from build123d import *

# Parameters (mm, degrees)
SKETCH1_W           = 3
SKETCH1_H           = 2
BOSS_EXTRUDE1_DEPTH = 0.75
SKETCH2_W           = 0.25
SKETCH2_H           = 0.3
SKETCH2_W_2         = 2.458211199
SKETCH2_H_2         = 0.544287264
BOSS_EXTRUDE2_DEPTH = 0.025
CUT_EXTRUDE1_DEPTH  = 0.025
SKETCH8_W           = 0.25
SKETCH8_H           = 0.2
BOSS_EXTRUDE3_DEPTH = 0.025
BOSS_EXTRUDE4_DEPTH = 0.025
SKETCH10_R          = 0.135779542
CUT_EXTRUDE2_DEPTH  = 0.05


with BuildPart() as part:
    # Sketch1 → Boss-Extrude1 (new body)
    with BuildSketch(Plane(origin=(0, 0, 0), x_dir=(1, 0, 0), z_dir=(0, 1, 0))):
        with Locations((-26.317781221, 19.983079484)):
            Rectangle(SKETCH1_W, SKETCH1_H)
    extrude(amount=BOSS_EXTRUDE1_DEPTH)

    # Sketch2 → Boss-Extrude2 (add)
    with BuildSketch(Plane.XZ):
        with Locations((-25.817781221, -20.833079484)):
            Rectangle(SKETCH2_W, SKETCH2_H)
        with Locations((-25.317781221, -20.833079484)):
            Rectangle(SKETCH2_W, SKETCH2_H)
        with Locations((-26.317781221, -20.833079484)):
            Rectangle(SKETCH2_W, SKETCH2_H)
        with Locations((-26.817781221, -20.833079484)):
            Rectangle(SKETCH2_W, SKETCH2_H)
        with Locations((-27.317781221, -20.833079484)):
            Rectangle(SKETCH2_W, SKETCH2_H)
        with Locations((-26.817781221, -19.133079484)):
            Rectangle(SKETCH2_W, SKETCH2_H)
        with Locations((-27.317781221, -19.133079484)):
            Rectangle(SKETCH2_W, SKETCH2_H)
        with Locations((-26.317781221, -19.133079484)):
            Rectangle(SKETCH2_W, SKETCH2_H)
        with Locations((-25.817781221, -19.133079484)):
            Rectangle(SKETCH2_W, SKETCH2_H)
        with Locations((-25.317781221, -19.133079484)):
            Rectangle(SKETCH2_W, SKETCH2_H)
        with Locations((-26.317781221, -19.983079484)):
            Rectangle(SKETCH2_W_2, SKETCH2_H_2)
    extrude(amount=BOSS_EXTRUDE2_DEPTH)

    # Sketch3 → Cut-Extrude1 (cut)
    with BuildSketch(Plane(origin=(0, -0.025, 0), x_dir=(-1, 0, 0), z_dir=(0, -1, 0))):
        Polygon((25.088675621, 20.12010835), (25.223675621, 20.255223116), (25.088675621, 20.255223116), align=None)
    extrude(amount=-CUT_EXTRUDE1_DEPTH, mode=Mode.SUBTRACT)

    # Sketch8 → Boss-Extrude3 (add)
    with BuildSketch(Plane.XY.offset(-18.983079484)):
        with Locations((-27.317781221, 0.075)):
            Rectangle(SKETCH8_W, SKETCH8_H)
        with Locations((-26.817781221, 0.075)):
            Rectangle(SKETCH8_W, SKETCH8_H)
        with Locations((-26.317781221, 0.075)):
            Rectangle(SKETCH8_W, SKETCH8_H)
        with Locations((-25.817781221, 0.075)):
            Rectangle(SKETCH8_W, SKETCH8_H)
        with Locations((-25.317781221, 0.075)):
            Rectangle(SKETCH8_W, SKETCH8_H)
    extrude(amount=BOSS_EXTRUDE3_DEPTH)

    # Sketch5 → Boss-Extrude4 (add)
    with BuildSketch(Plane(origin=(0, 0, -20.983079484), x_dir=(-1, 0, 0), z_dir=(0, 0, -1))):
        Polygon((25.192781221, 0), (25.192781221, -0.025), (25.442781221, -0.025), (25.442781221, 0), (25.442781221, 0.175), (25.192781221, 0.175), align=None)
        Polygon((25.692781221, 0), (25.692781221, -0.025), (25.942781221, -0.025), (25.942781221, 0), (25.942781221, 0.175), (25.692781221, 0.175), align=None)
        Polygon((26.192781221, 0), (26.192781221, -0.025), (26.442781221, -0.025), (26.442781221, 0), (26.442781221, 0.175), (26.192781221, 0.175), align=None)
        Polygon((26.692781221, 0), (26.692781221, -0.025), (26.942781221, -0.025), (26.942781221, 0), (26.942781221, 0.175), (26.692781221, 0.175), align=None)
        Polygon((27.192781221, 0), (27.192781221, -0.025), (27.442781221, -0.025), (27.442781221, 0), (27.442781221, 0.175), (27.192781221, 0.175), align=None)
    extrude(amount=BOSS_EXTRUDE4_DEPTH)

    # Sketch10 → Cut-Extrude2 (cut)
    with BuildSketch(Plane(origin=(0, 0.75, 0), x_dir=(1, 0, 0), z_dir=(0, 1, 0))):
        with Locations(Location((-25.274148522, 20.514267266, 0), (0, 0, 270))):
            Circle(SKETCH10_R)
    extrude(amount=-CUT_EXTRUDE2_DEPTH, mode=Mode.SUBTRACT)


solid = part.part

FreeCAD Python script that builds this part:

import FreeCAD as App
import Part
import Sketcher
from FreeCAD import Vector

doc = App.newDocument("Part")
body = doc.addObject("PartDesign::Body", "Body")

# Sketch on XZ plane
sketch1 = doc.addObject("Sketcher::SketchObject", "Sketch")
body.addObject(sketch1)
sketch1.AttachmentSupport = (doc.XZ_Plane, [""])
sketch1.MapMode = "FlatFace"
sketch1.addGeometry([
    Part.LineSegment(Vector(-27.8, -21, 0), Vector(-27.8, -19, 0)),
    Part.LineSegment(Vector(-27.8, -19, 0), Vector(-24.8, -19, 0)),
    Part.LineSegment(Vector(-24.8, -19, 0), Vector(-24.8, -21, 0)),
    Part.LineSegment(Vector(-24.8, -21, 0), Vector(-27.8, -21, 0)),
], False)
sketch1.addConstraint([
    Sketcher.Constraint("Coincident", 0, 2, 1, 1),
    Sketcher.Constraint("Coincident", 1, 2, 2, 1),
    Sketcher.Constraint("Coincident", 2, 2, 3, 1),
    Sketcher.Constraint("Coincident", 3, 2, 0, 1),
    Sketcher.Constraint("Vertical", 0),
    Sketcher.Constraint("Horizontal", 1),
    Sketcher.Constraint("Vertical", 2),
    Sketcher.Constraint("Horizontal", 3),
    Sketcher.Constraint("DistanceX", 1, 1, 1, 2, 3.0),
    Sketcher.Constraint("DistanceY", 0, 1, 0, 2, 2.0),
    Sketcher.Constraint("DistanceX", 0, 2, -1, 1, 27.817781),
    Sketcher.Constraint("DistanceY", 0, 2, -1, 1, 18.983079),
])
pad1 = doc.addObject("PartDesign::Pad", "Pad")
body.addObject(pad1)
pad1.Profile = sketch1
pad1.Length = 0.75
pad1.Reversed = True

# Sketch on XZ plane
sketch2 = doc.addObject("Sketcher::SketchObject", "Sketch001")
body.addObject(sketch2)
sketch2.AttachmentSupport = (doc.XZ_Plane, [""])
sketch2.MapMode = "FlatFace"
sketch2.addGeometry([
    Part.LineSegment(Vector(-25.94, -20.68, 0), Vector(-25.94, -20.98, 0)),  # 0
    Part.LineSegment(Vector(-25.94, -20.98, 0), Vector(-25.69, -20.98, 0)),  # 1
    Part.LineSegment(Vector(-25.69, -20.98, 0), Vector(-25.69, -20.68, 0)),  # 2
    Part.LineSegment(Vector(-25.69, -20.68, 0), Vector(-25.94, -20.68, 0)),  # 3
    Part.LineSegment(Vector(-25.44, -20.68, 0), Vector(-25.44, -20.98, 0)),  # 4
    Part.LineSegment(Vector(-25.44, -20.98, 0), Vector(-25.19, -20.98, 0)),  # 5
    Part.LineSegment(Vector(-25.19, -20.98, 0), Vector(-25.19, -20.68, 0)),  # 6
    Part.LineSegment(Vector(-25.19, -20.68, 0), Vector(-25.44, -20.68, 0)),  # 7
    Part.LineSegment(Vector(-26.44, -20.68, 0), Vector(-26.44, -20.98, 0)),  # 8
    Part.LineSegment(Vector(-26.44, -20.98, 0), Vector(-26.19, -20.98, 0)),  # 9
    Part.LineSegment(Vector(-26.19, -20.98, 0), Vector(-26.19, -20.68, 0)),  # 10
    Part.LineSegment(Vector(-26.19, -20.68, 0), Vector(-26.44, -20.68, 0)),  # 11
    Part.LineSegment(Vector(-26.94, -20.68, 0), Vector(-26.94, -20.98, 0)),  # 12
    Part.LineSegment(Vector(-26.94, -20.98, 0), Vector(-26.69, -20.98, 0)),  # 13
    Part.LineSegment(Vector(-26.69, -20.98, 0), Vector(-26.69, -20.68, 0)),  # 14
    Part.LineSegment(Vector(-26.69, -20.68, 0), Vector(-26.94, -20.68, 0)),  # 15
    Part.LineSegment(Vector(-27.44, -20.68, 0), Vector(-27.44, -20.98, 0)),  # 16
    Part.LineSegment(Vector(-27.44, -20.98, 0), Vector(-27.19, -20.98, 0)),  # 17
    Part.LineSegment(Vector(-27.19, -20.98, 0), Vector(-27.19, -20.68, 0)),  # 18
    Part.LineSegment(Vector(-27.19, -20.68, 0), Vector(-27.44, -20.68, 0)),  # 19
    Part.LineSegment(Vector(-26.94, -18.98, 0), Vector(-26.94, -19.28, 0)),  # 20
    Part.LineSegment(Vector(-26.94, -19.28, 0), Vector(-26.69, -19.28, 0)),  # 21
    Part.LineSegment(Vector(-26.69, -19.28, 0), Vector(-26.69, -18.98, 0)),  # 22
    Part.LineSegment(Vector(-26.69, -18.98, 0), Vector(-26.94, -18.98, 0)),  # 23
    Part.LineSegment(Vector(-27.44, -18.98, 0), Vector(-27.44, -19.28, 0)),  # 24
    Part.LineSegment(Vector(-27.44, -19.28, 0), Vector(-27.19, -19.28, 0)),  # 25
    Part.LineSegment(Vector(-27.19, -19.28, 0), Vector(-27.19, -18.98, 0)),  # 26
    Part.LineSegment(Vector(-27.19, -18.98, 0), Vector(-27.44, -18.98, 0)),  # 27
    Part.LineSegment(Vector(-26.44, -18.98, 0), Vector(-26.44, -19.28, 0)),  # 28
    Part.LineSegment(Vector(-26.44, -19.28, 0), Vector(-26.19, -19.28, 0)),  # 29
    Part.LineSegment(Vector(-26.19, -19.28, 0), Vector(-26.19, -18.98, 0)),  # 30
    Part.LineSegment(Vector(-26.19, -18.98, 0), Vector(-26.44, -18.98, 0)),  # 31
    Part.LineSegment(Vector(-25.94, -18.98, 0), Vector(-25.94, -19.28, 0)),  # 32
    Part.LineSegment(Vector(-25.94, -19.28, 0), Vector(-25.69, -19.28, 0)),  # 33
    Part.LineSegment(Vector(-25.69, -19.28, 0), Vector(-25.69, -18.98, 0)),  # 34
    Part.LineSegment(Vector(-25.69, -18.98, 0), Vector(-25.94, -18.98, 0)),  # 35
    Part.LineSegment(Vector(-25.44, -18.98, 0), Vector(-25.44, -19.28, 0)),  # 36
    Part.LineSegment(Vector(-25.44, -19.28, 0), Vector(-25.19, -19.28, 0)),  # 37
    Part.LineSegment(Vector(-25.19, -19.28, 0), Vector(-25.19, -18.98, 0)),  # 38
    Part.LineSegment(Vector(-25.19, -18.98, 0), Vector(-25.44, -18.98, 0)),  # 39
    Part.LineSegment(Vector(-27.55, -19.71, 0), Vector(-27.55, -20.26, 0)),  # 40
    Part.LineSegment(Vector(-27.55, -20.26, 0), Vector(-25.09, -20.26, 0)),  # 41
    Part.LineSegment(Vector(-25.09, -20.26, 0), Vector(-25.09, -19.71, 0)),  # 42
    Part.LineSegment(Vector(-25.09, -19.71, 0), Vector(-27.55, -19.71, 0)),  # 43
], False)
sketch2.addConstraint([
    Sketcher.Constraint("Coincident", 0, 2, 1, 1),
    Sketcher.Constraint("Coincident", 1, 2, 2, 1),
    Sketcher.Constraint("Coincident", 2, 2, 3, 1),
    Sketcher.Constraint("Coincident", 3, 2, 0, 1),
    Sketcher.Constraint("Coincident", 4, 2, 5, 1),
    Sketcher.Constraint("Coincident", 5, 2, 6, 1),
    Sketcher.Constraint("Coincident", 6, 2, 7, 1),
    Sketcher.Constraint("Coincident", 7, 2, 4, 1),
    Sketcher.Constraint("Coincident", 8, 2, 9, 1),
    Sketcher.Constraint("Coincident", 9, 2, 10, 1),
    Sketcher.Constraint("Coincident", 10, 2, 11, 1),
    Sketcher.Constraint("Coincident", 11, 2, 8, 1),
    Sketcher.Constraint("Coincident", 12, 2, 13, 1),
    Sketcher.Constraint("Coincident", 13, 2, 14, 1),
    Sketcher.Constraint("Coincident", 14, 2, 15, 1),
    Sketcher.Constraint("Coincident", 15, 2, 12, 1),
    Sketcher.Constraint("Coincident", 16, 2, 17, 1),
    Sketcher.Constraint("Coincident", 17, 2, 18, 1),
    Sketcher.Constraint("Coincident", 18, 2, 19, 1),
    Sketcher.Constraint("Coincident", 19, 2, 16, 1),
    Sketcher.Constraint("Coincident", 20, 2, 21, 1),
    Sketcher.Constraint("Coincident", 21, 2, 22, 1),
    Sketcher.Constraint("Coincident", 22, 2, 23, 1),
    Sketcher.Constraint("Coincident", 23, 2, 20, 1),
    Sketcher.Constraint("Coincident", 24, 2, 25, 1),
    Sketcher.Constraint("Coincident", 25, 2, 26, 1),
    Sketcher.Constraint("Coincident", 26, 2, 27, 1),
    Sketcher.Constraint("Coincident", 27, 2, 24, 1),
    Sketcher.Constraint("Coincident", 28, 2, 29, 1),
    Sketcher.Constraint("Coincident", 29, 2, 30, 1),
    Sketcher.Constraint("Coincident", 30, 2, 31, 1),
    Sketcher.Constraint("Coincident", 31, 2, 28, 1),
    Sketcher.Constraint("Coincident", 32, 2, 33, 1),
    Sketcher.Constraint("Coincident", 33, 2, 34, 1),
    Sketcher.Constraint("Coincident", 34, 2, 35, 1),
    Sketcher.Constraint("Coincident", 35, 2, 32, 1),
    Sketcher.Constraint("Coincident", 36, 2, 37, 1),
    Sketcher.Constraint("Coincident", 37, 2, 38, 1),
    Sketcher.Constraint("Coincident", 38, 2, 39, 1),
    Sketcher.Constraint("Coincident", 39, 2, 36, 1),
    Sketcher.Constraint("Coincident", 40, 2, 41, 1),
    Sketcher.Constraint("Coincident", 41, 2, 42, 1),
    Sketcher.Constraint("Coincident", 42, 2, 43, 1),
    Sketcher.Constraint("Coincident", 43, 2, 40, 1),
    Sketcher.Constraint("Vertical", 0),
    Sketcher.Constraint("Horizontal", 1),
    Sketcher.Constraint("Vertical", 2),
    Sketcher.Constraint("Horizontal", 3),
    Sketcher.Constraint("Vertical", 4),
    Sketcher.Constraint("Horizontal", 5),
    Sketcher.Constraint("Vertical", 6),
    Sketcher.Constraint("Horizontal", 7),
    Sketcher.Constraint("Vertical", 8),
    Sketcher.Constraint("Horizontal", 9),
    Sketcher.Constraint("Vertical", 10),
    Sketcher.Constraint("Horizontal", 11),
    Sketcher.Constraint("Vertical", 12),
    Sketcher.Constraint("Horizontal", 13),
    Sketcher.Constraint("Vertical", 14),
    Sketcher.Constraint("Horizontal", 15),
    Sketcher.Constraint("Vertical", 16),
    Sketcher.Constraint("Horizontal", 17),
    Sketcher.Constraint("Vertical", 18),
    Sketcher.Constraint("Horizontal", 19),
    Sketcher.Constraint("Vertical", 20),
    Sketcher.Constraint("Horizontal", 21),
    Sketcher.Constraint("Vertical", 22),
    Sketcher.Constraint("Horizontal", 23),
    Sketcher.Constraint("Vertical", 24),
    Sketcher.Constraint("Horizontal", 25),
    Sketcher.Constraint("Vertical", 26),
    Sketcher.Constraint("Horizontal", 27),
    Sketcher.Constraint("Vertical", 28),
    Sketcher.Constraint("Horizontal", 29),
    Sketcher.Constraint("Vertical", 30),
    Sketcher.Constraint("Horizontal", 31),
    Sketcher.Constraint("Vertical", 32),
    Sketcher.Constraint("Horizontal", 33),
    Sketcher.Constraint("Vertical", 34),
    Sketcher.Constraint("Horizontal", 35),
    Sketcher.Constraint("Vertical", 36),
    Sketcher.Constraint("Horizontal", 37),
    Sketcher.Constraint("Vertical", 38),
    Sketcher.Constraint("Horizontal", 39),
    Sketcher.Constraint("Vertical", 40),
    Sketcher.Constraint("Horizontal", 41),
    Sketcher.Constraint("Vertical", 42),
    Sketcher.Constraint("Horizontal", 43),
    Sketcher.Constraint("Horizontal", 1, 2, 4, 2),
    Sketcher.Constraint("Horizontal", 3, 2, 6, 2),
    Sketcher.Constraint("Horizontal", 5, 2, 8, 2),
    Sketcher.Constraint("Horizontal", 7, 2, 10, 2),
    Sketcher.Constraint("Horizontal", 9, 2, 12, 2),
    Sketcher.Constraint("Horizontal", 11, 2, 14, 2),
    Sketcher.Constraint("Horizontal", 13, 2, 16, 2),
    Sketcher.Constraint("Horizontal", 15, 2, 18, 2),
    Sketcher.Constraint("Horizontal", 21, 2, 24, 2),
    Sketcher.Constraint("Horizontal", 23, 2, 26, 2),
    Sketcher.Constraint("Horizontal", 25, 2, 28, 2),
    Sketcher.Constraint("Horizontal", 27, 2, 30, 2),
    Sketcher.Constraint("Horizontal", 29, 2, 32, 2),
    Sketcher.Constraint("Horizontal", 31, 2, 34, 2),
    Sketcher.Constraint("Horizontal", 33, 2, 36, 2),
    Sketcher.Constraint("Horizontal", 35, 2, 38, 2),
    Sketcher.Constraint("Vertical", 15, 2, 20, 2),
    Sketcher.Constraint("Vertical", 14, 2, 21, 2),
    Sketcher.Constraint("Vertical", 19, 2, 24, 2),
    Sketcher.Constraint("Vertical", 18, 2, 25, 2),
    Sketcher.Constraint("Vertical", 11, 2, 28, 2),
    Sketcher.Constraint("Vertical", 10, 2, 29, 2),
    Sketcher.Constraint("Vertical", 3, 2, 32, 2),
    Sketcher.Constraint("Vertical", 2, 2, 33, 2),
    Sketcher.Constraint("Vertical", 7, 2, 36, 2),
    Sketcher.Constraint("Vertical", 6, 2, 37, 2),
    Sketcher.Constraint("Equal", 3, 5),
    Sketcher.Constraint("Equal", 7, 9),
    Sketcher.Constraint("Equal", 11, 13),
    Sketcher.Constraint("Equal", 15, 17),
    Sketcher.Constraint("Equal", 18, 20),
    Sketcher.Constraint("DistanceY", 0, 2, 0, 1, 0.3),
    Sketcher.Constraint("DistanceX", 8, 2, 4, 2, 1.0),
    Sketcher.Constraint("DistanceX", 12, 2, 0, 2, 1.0),
    Sketcher.Constraint("DistanceX", 16, 2, 8, 2, 1.0),
    Sketcher.Constraint("DistanceX", 1, 1, 1, 2, 0.25),
    Sketcher.Constraint("DistanceX", 0, 2, 4, 2, 0.5),
    Sketcher.Constraint("DistanceY", 15, 2, 20, 2, 1.4),
    Sketcher.Constraint("DistanceX", 41, 1, 41, 2, 2.458211),
    Sketcher.Constraint("DistanceY", 40, 2, 40, 1, 0.544287),
    Sketcher.Constraint("DistanceX", 0, 2, -1, 1, 25.942781),
    Sketcher.Constraint("DistanceY", 0, 2, -1, 1, 20.983079),
    Sketcher.Constraint("DistanceX", 40, 2, -1, 1, 27.546887),
    Sketcher.Constraint("DistanceY", 40, 2, -1, 1, 20.255223),
])
pad2 = doc.addObject("PartDesign::Pad", "Pad001")
body.addObject(pad2)
pad2.Profile = sketch2
pad2.Length = 0.025

# Sketch on XZ plane
sketch3 = doc.addObject("Sketcher::SketchObject", "Sketch002")
body.addObject(sketch3)
sketch3.AttachmentSupport = (doc.XZ_Plane, [""])
sketch3.MapMode = "FlatFace"
sketch3.AttachmentOffset = App.Placement(Vector(0, 0, 0.025), App.Rotation())
sketch3.addGeometry([
    Part.LineSegment(Vector(-25.09, -20.12, 0), Vector(-25.22, -20.26, 0)),
    Part.LineSegment(Vector(-25.22, -20.26, 0), Vector(-25.09, -20.26, 0)),
    Part.LineSegment(Vector(-25.09, -20.26, 0), Vector(-25.09, -20.12, 0)),
], False)
sketch3.addConstraint([
    Sketcher.Constraint("Coincident", 0, 2, 1, 1),
    Sketcher.Constraint("Coincident", 1, 2, 2, 1),
    Sketcher.Constraint("Coincident", 2, 2, 0, 1),
    Sketcher.Constraint("Horizontal", 1),
    Sketcher.Constraint("Vertical", 2),
    Sketcher.Constraint("DistanceX", 1, 1, 1, 2, 0.135),
    Sketcher.Constraint("Distance", 0, 0.191),
    Sketcher.Constraint("DistanceY", 2, 2, -1, 1, 20.120108),
    Sketcher.Constraint("DistanceX", 0, 2, -1, 1, 25.223676),
])
pocket1 = doc.addObject("PartDesign::Pocket", "Pocket")
body.addObject(pocket1)
pocket1.Profile = sketch3
pocket1.Length = 0.025

# Sketch on XY plane
sketch4 = doc.addObject("Sketcher::SketchObject", "Sketch003")
body.addObject(sketch4)
sketch4.AttachmentSupport = (doc.XY_Plane, [""])
sketch4.MapMode = "FlatFace"
sketch4.AttachmentOffset = App.Placement(Vector(0, 0, -18.983079), App.Rotation())
sketch4.addGeometry([
    Part.LineSegment(Vector(-27.44, 0.17, 0), Vector(-27.44, -0.03, 0)),  # 0
    Part.LineSegment(Vector(-27.44, -0.03, 0), Vector(-27.19, -0.03, 0)),  # 1
    Part.LineSegment(Vector(-27.19, -0.03, 0), Vector(-27.19, 0.17, 0)),  # 2
    Part.LineSegment(Vector(-27.19, 0.17, 0), Vector(-27.44, 0.17, 0)),  # 3
    Part.LineSegment(Vector(-26.94, 0.17, 0), Vector(-26.94, -0.03, 0)),  # 4
    Part.LineSegment(Vector(-26.94, -0.03, 0), Vector(-26.69, -0.03, 0)),  # 5
    Part.LineSegment(Vector(-26.69, -0.03, 0), Vector(-26.69, 0.17, 0)),  # 6
    Part.LineSegment(Vector(-26.69, 0.17, 0), Vector(-26.94, 0.17, 0)),  # 7
    Part.LineSegment(Vector(-26.44, 0.17, 0), Vector(-26.44, -0.03, 0)),  # 8
    Part.LineSegment(Vector(-26.44, -0.03, 0), Vector(-26.19, -0.03, 0)),  # 9
    Part.LineSegment(Vector(-26.19, -0.03, 0), Vector(-26.19, 0.17, 0)),  # 10
    Part.LineSegment(Vector(-26.19, 0.17, 0), Vector(-26.44, 0.17, 0)),  # 11
    Part.LineSegment(Vector(-25.94, 0.17, 0), Vector(-25.94, -0.03, 0)),  # 12
    Part.LineSegment(Vector(-25.94, -0.03, 0), Vector(-25.69, -0.03, 0)),  # 13
    Part.LineSegment(Vector(-25.69, -0.03, 0), Vector(-25.69, 0.17, 0)),  # 14
    Part.LineSegment(Vector(-25.69, 0.17, 0), Vector(-25.94, 0.17, 0)),  # 15
    Part.LineSegment(Vector(-25.44, 0.17, 0), Vector(-25.44, -0.03, 0)),  # 16
    Part.LineSegment(Vector(-25.44, -0.03, 0), Vector(-25.19, -0.03, 0)),  # 17
    Part.LineSegment(Vector(-25.19, -0.03, 0), Vector(-25.19, 0.17, 0)),  # 18
    Part.LineSegment(Vector(-25.19, 0.17, 0), Vector(-25.44, 0.17, 0)),  # 19
], False)
sketch4.addConstraint([
    Sketcher.Constraint("Coincident", 0, 2, 1, 1),
    Sketcher.Constraint("Coincident", 1, 2, 2, 1),
    Sketcher.Constraint("Coincident", 2, 2, 3, 1),
    Sketcher.Constraint("Coincident", 3, 2, 0, 1),
    Sketcher.Constraint("Coincident", 4, 2, 5, 1),
    Sketcher.Constraint("Coincident", 5, 2, 6, 1),
    Sketcher.Constraint("Coincident", 6, 2, 7, 1),
    Sketcher.Constraint("Coincident", 7, 2, 4, 1),
    Sketcher.Constraint("Coincident", 8, 2, 9, 1),
    Sketcher.Constraint("Coincident", 9, 2, 10, 1),
    Sketcher.Constraint("Coincident", 10, 2, 11, 1),
    Sketcher.Constraint("Coincident", 11, 2, 8, 1),
    Sketcher.Constraint("Coincident", 12, 2, 13, 1),
    Sketcher.Constraint("Coincident", 13, 2, 14, 1),
    Sketcher.Constraint("Coincident", 14, 2, 15, 1),
    Sketcher.Constraint("Coincident", 15, 2, 12, 1),
    Sketcher.Constraint("Coincident", 16, 2, 17, 1),
    Sketcher.Constraint("Coincident", 17, 2, 18, 1),
    Sketcher.Constraint("Coincident", 18, 2, 19, 1),
    Sketcher.Constraint("Coincident", 19, 2, 16, 1),
    Sketcher.Constraint("Vertical", 0),
    Sketcher.Constraint("Horizontal", 1),
    Sketcher.Constraint("Vertical", 2),
    Sketcher.Constraint("Horizontal", 3),
    Sketcher.Constraint("Vertical", 4),
    Sketcher.Constraint("Horizontal", 5),
    Sketcher.Constraint("Vertical", 6),
    Sketcher.Constraint("Horizontal", 7),
    Sketcher.Constraint("Vertical", 8),
    Sketcher.Constraint("Horizontal", 9),
    Sketcher.Constraint("Vertical", 10),
    Sketcher.Constraint("Horizontal", 11),
    Sketcher.Constraint("Vertical", 12),
    Sketcher.Constraint("Horizontal", 13),
    Sketcher.Constraint("Vertical", 14),
    Sketcher.Constraint("Horizontal", 15),
    Sketcher.Constraint("Vertical", 16),
    Sketcher.Constraint("Horizontal", 17),
    Sketcher.Constraint("Vertical", 18),
    Sketcher.Constraint("Horizontal", 19),
    Sketcher.Constraint("Horizontal", 1, 2, 4, 2),
    Sketcher.Constraint("Horizontal", 3, 2, 6, 2),
    Sketcher.Constraint("Horizontal", 5, 2, 8, 2),
    Sketcher.Constraint("Horizontal", 7, 2, 10, 2),
    Sketcher.Constraint("Horizontal", 9, 2, 12, 2),
    Sketcher.Constraint("Horizontal", 11, 2, 14, 2),
    Sketcher.Constraint("Horizontal", 13, 2, 16, 2),
    Sketcher.Constraint("Horizontal", 15, 2, 18, 2),
    Sketcher.Constraint("Equal", 3, 5),
    Sketcher.Constraint("Equal", 7, 9),
    Sketcher.Constraint("Equal", 11, 13),
    Sketcher.Constraint("Equal", 15, 17),
    Sketcher.Constraint("DistanceY", 0, 2, 0, 1, 0.2),
    Sketcher.Constraint("DistanceX", 1, 1, 1, 2, 0.25),
    Sketcher.Constraint("DistanceX", 0, 2, 4, 2, 0.5),
    Sketcher.Constraint("DistanceX", 4, 2, 8, 2, 0.5),
    Sketcher.Constraint("DistanceX", 8, 2, 12, 2, 0.5),
    Sketcher.Constraint("DistanceX", 12, 2, 16, 2, 0.5),
    Sketcher.Constraint("DistanceY", 0, 2, -1, 1, 0.025),
    Sketcher.Constraint("DistanceX", 0, 2, -1, 1, 27.442781),
])
pad3 = doc.addObject("PartDesign::Pad", "Pad002")
body.addObject(pad3)
pad3.Profile = sketch4
pad3.Length = 0.025

# Sketch on XY plane
sketch5 = doc.addObject("Sketcher::SketchObject", "Sketch004")
body.addObject(sketch5)
sketch5.AttachmentSupport = (doc.XY_Plane, [""])
sketch5.MapMode = "FlatFace"
sketch5.AttachmentOffset = App.Placement(Vector(0, 0, -20.983079), App.Rotation())
sketch5.addGeometry([
    Part.LineSegment(Vector(-25.19, -0.03, 0), Vector(-25.44, -0.03, 0)),  # 0
    Part.LineSegment(Vector(-25.44, -0.03, 0), Vector(-25.44, 0.17, 0)),  # 1
    Part.LineSegment(Vector(-25.44, 0.17, 0), Vector(-25.19, 0.17, 0)),  # 2
    Part.LineSegment(Vector(-25.19, 0.17, 0), Vector(-25.19, -0.03, 0)),  # 3
    Part.LineSegment(Vector(-25.69, -0.03, 0), Vector(-25.94, -0.03, 0)),  # 4
    Part.LineSegment(Vector(-25.94, -0.03, 0), Vector(-25.94, 0.17, 0)),  # 5
    Part.LineSegment(Vector(-25.94, 0.17, 0), Vector(-25.69, 0.17, 0)),  # 6
    Part.LineSegment(Vector(-25.69, 0.17, 0), Vector(-25.69, -0.03, 0)),  # 7
    Part.LineSegment(Vector(-26.19, -0.03, 0), Vector(-26.44, -0.03, 0)),  # 8
    Part.LineSegment(Vector(-26.44, -0.03, 0), Vector(-26.44, 0.17, 0)),  # 9
    Part.LineSegment(Vector(-26.44, 0.17, 0), Vector(-26.19, 0.17, 0)),  # 10
    Part.LineSegment(Vector(-26.19, 0.17, 0), Vector(-26.19, -0.03, 0)),  # 11
    Part.LineSegment(Vector(-26.69, -0.03, 0), Vector(-26.94, -0.03, 0)),  # 12
    Part.LineSegment(Vector(-26.94, -0.03, 0), Vector(-26.94, 0.17, 0)),  # 13
    Part.LineSegment(Vector(-26.94, 0.17, 0), Vector(-26.69, 0.17, 0)),  # 14
    Part.LineSegment(Vector(-26.69, 0.17, 0), Vector(-26.69, -0.03, 0)),  # 15
    Part.LineSegment(Vector(-27.19, -0.03, 0), Vector(-27.44, -0.03, 0)),  # 16
    Part.LineSegment(Vector(-27.44, -0.03, 0), Vector(-27.44, 0.17, 0)),  # 17
    Part.LineSegment(Vector(-27.44, 0.17, 0), Vector(-27.19, 0.17, 0)),  # 18
    Part.LineSegment(Vector(-27.19, 0.17, 0), Vector(-27.19, -0.03, 0)),  # 19
], False)
sketch5.addConstraint([
    Sketcher.Constraint("Coincident", 0, 2, 1, 1),
    Sketcher.Constraint("Coincident", 1, 2, 2, 1),
    Sketcher.Constraint("Coincident", 2, 2, 3, 1),
    Sketcher.Constraint("Coincident", 3, 2, 0, 1),
    Sketcher.Constraint("Coincident", 4, 2, 5, 1),
    Sketcher.Constraint("Coincident", 5, 2, 6, 1),
    Sketcher.Constraint("Coincident", 6, 2, 7, 1),
    Sketcher.Constraint("Coincident", 7, 2, 4, 1),
    Sketcher.Constraint("Coincident", 8, 2, 9, 1),
    Sketcher.Constraint("Coincident", 9, 2, 10, 1),
    Sketcher.Constraint("Coincident", 10, 2, 11, 1),
    Sketcher.Constraint("Coincident", 11, 2, 8, 1),
    Sketcher.Constraint("Coincident", 12, 2, 13, 1),
    Sketcher.Constraint("Coincident", 13, 2, 14, 1),
    Sketcher.Constraint("Coincident", 14, 2, 15, 1),
    Sketcher.Constraint("Coincident", 15, 2, 12, 1),
    Sketcher.Constraint("Coincident", 16, 2, 17, 1),
    Sketcher.Constraint("Coincident", 17, 2, 18, 1),
    Sketcher.Constraint("Coincident", 18, 2, 19, 1),
    Sketcher.Constraint("Coincident", 19, 2, 16, 1),
    Sketcher.Constraint("Horizontal", 0),
    Sketcher.Constraint("Vertical", 1),
    Sketcher.Constraint("Horizontal", 2),
    Sketcher.Constraint("Vertical", 3),
    Sketcher.Constraint("Horizontal", 4),
    Sketcher.Constraint("Vertical", 5),
    Sketcher.Constraint("Horizontal", 6),
    Sketcher.Constraint("Vertical", 7),
    Sketcher.Constraint("Horizontal", 8),
    Sketcher.Constraint("Vertical", 9),
    Sketcher.Constraint("Horizontal", 10),
    Sketcher.Constraint("Vertical", 11),
    Sketcher.Constraint("Horizontal", 12),
    Sketcher.Constraint("Vertical", 13),
    Sketcher.Constraint("Horizontal", 14),
    Sketcher.Constraint("Vertical", 15),
    Sketcher.Constraint("Horizontal", 16),
    Sketcher.Constraint("Vertical", 17),
    Sketcher.Constraint("Horizontal", 18),
    Sketcher.Constraint("Vertical", 19),
    Sketcher.Constraint("Horizontal", 3, 2, 4, 2),
    Sketcher.Constraint("Horizontal", 2, 2, 5, 2),
    Sketcher.Constraint("Horizontal", 7, 2, 8, 2),
    Sketcher.Constraint("Horizontal", 6, 2, 9, 2),
    Sketcher.Constraint("Horizontal", 11, 2, 12, 2),
    Sketcher.Constraint("Horizontal", 10, 2, 13, 2),
    Sketcher.Constraint("Horizontal", 15, 2, 16, 2),
    Sketcher.Constraint("Horizontal", 14, 2, 17, 2),
    Sketcher.Constraint("Equal", 2, 4),
    Sketcher.Constraint("Equal", 6, 8),
    Sketcher.Constraint("Equal", 10, 12),
    Sketcher.Constraint("Equal", 14, 16),
    Sketcher.Constraint("DistanceY", 1, 1, 1, 2, 0.2),
    Sketcher.Constraint("DistanceX", 8, 2, 0, 2, 1.0),
    Sketcher.Constraint("DistanceX", 12, 2, 4, 2, 1.0),
    Sketcher.Constraint("DistanceX", 16, 2, 8, 2, 1.0),
    Sketcher.Constraint("DistanceX", 0, 2, 0, 1, 0.25),
    Sketcher.Constraint("DistanceX", 4, 2, 0, 2, 0.5),
    Sketcher.Constraint("DistanceY", 0, 2, -1, 1, 0.025),
    Sketcher.Constraint("DistanceX", 0, 2, -1, 1, 25.442781),
])
pad4 = doc.addObject("PartDesign::Pad", "Pad003")
body.addObject(pad4)
pad4.Profile = sketch5
pad4.Length = 0.025
pad4.Reversed = True

# Sketch on XZ plane
sketch6 = doc.addObject("Sketcher::SketchObject", "Sketch005")
body.addObject(sketch6)
sketch6.AttachmentSupport = (doc.XZ_Plane, [""])
sketch6.MapMode = "FlatFace"
sketch6.AttachmentOffset = App.Placement(Vector(0, 0, -0.75), App.Rotation())
sketch6.addGeometry(Part.Circle(Vector(-25.27, -20.51, 0), Vector(0, 0, 1), 0.14), False)
sketch6.addConstraint([
    Sketcher.Constraint("Diameter", 0, 0.271559),
    Sketcher.Constraint("DistanceX", 0, 3, -1, 1, 25.274149),
    Sketcher.Constraint("DistanceY", 0, 3, -1, 1, 20.514267),
])
pocket2 = doc.addObject("PartDesign::Pocket", "Pocket001")
body.addObject(pocket2)
pocket2.Profile = sketch6
pocket2.Length = 0.05
pocket2.Reversed = True

doc.recompute()
